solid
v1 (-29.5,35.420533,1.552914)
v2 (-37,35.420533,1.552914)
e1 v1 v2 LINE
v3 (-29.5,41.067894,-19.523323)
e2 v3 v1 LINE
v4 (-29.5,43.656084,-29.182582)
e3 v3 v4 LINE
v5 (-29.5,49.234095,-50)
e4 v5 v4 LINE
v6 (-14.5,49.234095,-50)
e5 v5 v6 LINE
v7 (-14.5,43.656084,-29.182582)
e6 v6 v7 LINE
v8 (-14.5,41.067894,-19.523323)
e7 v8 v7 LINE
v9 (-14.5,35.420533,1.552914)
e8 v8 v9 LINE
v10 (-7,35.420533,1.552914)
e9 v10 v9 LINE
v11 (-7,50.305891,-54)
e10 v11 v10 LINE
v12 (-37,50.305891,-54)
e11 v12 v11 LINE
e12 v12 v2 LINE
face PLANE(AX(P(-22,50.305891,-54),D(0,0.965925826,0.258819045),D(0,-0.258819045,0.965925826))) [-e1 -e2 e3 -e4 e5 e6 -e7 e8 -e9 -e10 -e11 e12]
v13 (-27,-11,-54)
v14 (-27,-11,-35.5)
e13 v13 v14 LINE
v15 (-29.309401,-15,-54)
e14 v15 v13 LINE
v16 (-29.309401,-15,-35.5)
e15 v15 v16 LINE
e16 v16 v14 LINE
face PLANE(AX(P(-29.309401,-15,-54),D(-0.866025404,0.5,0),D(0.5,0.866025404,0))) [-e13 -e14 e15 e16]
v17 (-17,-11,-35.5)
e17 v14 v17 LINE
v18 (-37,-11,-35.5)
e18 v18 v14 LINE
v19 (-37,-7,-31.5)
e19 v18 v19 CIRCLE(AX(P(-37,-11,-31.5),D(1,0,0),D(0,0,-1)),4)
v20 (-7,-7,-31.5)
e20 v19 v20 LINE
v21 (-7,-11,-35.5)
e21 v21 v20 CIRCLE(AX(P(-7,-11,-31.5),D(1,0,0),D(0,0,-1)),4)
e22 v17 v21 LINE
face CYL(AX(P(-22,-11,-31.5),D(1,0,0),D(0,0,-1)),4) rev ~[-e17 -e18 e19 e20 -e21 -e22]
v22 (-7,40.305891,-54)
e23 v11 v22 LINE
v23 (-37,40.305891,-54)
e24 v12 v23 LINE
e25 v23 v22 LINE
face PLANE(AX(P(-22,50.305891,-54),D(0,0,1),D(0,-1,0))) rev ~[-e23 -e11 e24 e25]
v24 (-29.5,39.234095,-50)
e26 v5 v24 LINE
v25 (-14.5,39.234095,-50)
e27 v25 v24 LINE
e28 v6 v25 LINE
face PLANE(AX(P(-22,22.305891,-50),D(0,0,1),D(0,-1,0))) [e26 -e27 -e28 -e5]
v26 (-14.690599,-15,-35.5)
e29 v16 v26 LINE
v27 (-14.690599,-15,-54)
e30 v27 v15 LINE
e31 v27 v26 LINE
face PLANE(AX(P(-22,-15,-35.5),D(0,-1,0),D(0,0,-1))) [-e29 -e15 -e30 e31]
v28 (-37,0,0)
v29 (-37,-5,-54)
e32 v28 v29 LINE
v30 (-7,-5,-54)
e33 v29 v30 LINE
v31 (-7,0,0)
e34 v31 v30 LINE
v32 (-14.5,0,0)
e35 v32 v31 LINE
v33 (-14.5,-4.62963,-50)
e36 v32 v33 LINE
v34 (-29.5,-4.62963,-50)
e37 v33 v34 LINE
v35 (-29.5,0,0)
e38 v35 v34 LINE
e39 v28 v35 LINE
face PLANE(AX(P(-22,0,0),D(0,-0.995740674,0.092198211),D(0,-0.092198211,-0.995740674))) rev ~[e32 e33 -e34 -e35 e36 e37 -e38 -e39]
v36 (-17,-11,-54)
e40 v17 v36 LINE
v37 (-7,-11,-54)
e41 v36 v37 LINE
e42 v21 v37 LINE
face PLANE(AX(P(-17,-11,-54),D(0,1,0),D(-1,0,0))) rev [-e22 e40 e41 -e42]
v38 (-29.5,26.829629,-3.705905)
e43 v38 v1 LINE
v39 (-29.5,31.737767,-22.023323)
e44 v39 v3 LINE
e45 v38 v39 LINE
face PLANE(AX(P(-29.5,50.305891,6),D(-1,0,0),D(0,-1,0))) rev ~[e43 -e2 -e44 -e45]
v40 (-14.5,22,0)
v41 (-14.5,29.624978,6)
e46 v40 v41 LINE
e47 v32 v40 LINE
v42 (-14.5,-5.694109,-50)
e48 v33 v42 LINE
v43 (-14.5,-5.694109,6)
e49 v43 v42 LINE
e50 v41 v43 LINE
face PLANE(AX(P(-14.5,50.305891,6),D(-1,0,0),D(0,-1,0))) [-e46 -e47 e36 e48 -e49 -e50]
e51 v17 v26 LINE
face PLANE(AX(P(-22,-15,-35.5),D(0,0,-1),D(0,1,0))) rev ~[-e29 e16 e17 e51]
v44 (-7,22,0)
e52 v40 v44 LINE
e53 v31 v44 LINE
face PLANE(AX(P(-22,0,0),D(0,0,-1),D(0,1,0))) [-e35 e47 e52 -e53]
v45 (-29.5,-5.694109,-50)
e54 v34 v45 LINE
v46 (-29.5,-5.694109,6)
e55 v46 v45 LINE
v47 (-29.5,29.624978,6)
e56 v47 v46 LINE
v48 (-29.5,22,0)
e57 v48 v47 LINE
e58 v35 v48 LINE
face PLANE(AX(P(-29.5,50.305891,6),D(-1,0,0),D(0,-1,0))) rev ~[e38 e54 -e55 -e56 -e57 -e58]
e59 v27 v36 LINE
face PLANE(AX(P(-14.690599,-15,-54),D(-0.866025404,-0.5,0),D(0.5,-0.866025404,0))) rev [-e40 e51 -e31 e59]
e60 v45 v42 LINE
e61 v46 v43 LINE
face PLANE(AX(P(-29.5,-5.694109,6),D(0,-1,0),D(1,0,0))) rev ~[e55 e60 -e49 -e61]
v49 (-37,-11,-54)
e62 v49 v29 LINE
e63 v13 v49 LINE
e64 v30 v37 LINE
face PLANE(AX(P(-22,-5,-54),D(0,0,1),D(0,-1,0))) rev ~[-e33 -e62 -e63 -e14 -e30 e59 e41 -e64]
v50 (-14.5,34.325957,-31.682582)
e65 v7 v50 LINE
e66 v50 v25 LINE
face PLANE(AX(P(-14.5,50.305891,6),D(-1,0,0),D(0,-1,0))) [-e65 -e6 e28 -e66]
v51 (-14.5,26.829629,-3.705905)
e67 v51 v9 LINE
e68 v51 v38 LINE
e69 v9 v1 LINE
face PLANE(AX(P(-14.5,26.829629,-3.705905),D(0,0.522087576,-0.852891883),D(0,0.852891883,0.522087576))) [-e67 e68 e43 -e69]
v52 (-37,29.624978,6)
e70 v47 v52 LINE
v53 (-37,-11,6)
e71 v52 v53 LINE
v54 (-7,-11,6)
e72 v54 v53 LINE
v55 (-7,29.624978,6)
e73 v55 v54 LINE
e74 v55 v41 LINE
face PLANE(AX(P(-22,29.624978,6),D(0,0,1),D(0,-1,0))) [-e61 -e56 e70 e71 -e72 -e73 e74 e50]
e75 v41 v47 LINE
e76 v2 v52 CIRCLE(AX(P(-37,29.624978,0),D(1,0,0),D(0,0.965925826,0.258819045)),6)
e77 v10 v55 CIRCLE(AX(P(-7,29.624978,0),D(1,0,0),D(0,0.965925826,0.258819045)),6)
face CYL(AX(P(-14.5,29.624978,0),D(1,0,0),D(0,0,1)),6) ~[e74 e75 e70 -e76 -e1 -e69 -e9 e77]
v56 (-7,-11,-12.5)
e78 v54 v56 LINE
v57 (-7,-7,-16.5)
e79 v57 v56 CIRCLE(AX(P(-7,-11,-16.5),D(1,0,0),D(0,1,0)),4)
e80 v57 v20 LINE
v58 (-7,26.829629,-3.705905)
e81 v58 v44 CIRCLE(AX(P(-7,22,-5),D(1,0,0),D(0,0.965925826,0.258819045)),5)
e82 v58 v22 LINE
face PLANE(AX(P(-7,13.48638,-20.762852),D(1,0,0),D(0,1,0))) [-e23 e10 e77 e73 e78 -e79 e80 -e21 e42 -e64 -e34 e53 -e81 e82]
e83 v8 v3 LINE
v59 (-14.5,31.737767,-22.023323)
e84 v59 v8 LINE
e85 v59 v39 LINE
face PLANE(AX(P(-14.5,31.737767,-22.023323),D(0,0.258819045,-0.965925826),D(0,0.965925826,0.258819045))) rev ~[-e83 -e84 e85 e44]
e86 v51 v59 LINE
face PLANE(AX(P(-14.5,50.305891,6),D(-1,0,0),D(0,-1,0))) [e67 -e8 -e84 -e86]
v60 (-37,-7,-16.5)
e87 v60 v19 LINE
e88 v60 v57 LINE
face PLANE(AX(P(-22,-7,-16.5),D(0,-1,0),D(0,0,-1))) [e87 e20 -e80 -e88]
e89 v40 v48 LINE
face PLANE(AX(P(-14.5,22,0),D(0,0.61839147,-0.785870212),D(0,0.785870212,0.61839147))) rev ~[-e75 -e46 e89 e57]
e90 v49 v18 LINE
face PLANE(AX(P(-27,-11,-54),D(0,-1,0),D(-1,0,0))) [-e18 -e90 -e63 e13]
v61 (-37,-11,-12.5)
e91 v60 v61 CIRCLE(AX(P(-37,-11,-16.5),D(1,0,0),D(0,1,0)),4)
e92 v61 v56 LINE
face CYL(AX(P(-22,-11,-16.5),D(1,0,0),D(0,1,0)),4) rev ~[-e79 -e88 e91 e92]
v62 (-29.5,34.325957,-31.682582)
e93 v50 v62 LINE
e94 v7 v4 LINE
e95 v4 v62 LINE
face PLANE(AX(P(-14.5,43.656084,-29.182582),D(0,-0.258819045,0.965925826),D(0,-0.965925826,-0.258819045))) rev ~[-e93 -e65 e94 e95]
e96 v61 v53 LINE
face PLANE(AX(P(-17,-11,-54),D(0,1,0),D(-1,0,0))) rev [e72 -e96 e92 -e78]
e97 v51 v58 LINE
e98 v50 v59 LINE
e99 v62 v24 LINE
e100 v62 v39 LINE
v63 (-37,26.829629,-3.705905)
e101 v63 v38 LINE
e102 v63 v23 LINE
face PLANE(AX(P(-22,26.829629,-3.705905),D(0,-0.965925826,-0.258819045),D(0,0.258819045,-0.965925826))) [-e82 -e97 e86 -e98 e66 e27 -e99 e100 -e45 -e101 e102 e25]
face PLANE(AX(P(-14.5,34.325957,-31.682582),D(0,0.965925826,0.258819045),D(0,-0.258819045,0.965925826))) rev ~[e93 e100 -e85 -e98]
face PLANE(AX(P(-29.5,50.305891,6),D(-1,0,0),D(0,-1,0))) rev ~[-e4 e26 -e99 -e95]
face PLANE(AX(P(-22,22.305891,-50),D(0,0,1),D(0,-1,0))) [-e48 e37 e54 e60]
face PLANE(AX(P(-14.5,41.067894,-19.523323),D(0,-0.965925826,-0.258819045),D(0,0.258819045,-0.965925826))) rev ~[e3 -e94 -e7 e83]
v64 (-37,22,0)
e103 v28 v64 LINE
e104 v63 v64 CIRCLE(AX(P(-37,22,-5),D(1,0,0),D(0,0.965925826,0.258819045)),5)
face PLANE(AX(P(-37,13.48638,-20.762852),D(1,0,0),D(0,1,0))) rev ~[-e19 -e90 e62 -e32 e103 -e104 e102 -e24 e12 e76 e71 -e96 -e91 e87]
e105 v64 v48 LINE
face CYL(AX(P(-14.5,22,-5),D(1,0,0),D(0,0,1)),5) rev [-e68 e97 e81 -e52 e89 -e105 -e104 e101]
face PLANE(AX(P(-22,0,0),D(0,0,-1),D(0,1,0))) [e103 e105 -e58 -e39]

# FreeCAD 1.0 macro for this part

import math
import FreeCAD as App
import Part
import Sketcher
from FreeCAD import Vector
Q = App.Units.Quantity


def add_polygon(sketch, points):
    """Adds a closed chain of lines whose ends are joined by coincident constraints."""
    first, n = sketch.GeometryCount, len(points)
    for a, b in zip(points, points[1:] + points[:1]):
        sketch.addGeometry(Part.LineSegment(App.Vector(*a, 0), App.Vector(*b, 0)), False)
    for i in range(n):
        sketch.addConstraint(Sketcher.Constraint("Coincident", first + i, 2, first + (i + 1) % n, 1))

doc = App.newDocument("Part")
body = doc.addObject("PartDesign::Body", "Body")

# Sketch on YZ plane
sketch1 = doc.addObject("Sketcher::SketchObject", "Sketch")
body.addObject(sketch1)
sketch1.AttachmentSupport = (doc.YZ_Plane, [""])
sketch1.MapMode = "FlatFace"
sketch1.addGeometry([
    Part.LineSegment(Vector(-15, 6, 0), Vector(-15, -12.5, 0)),  # 0
    Part.LineSegment(Vector(-15, -12.5, 0), Vector(-11, -12.5, 0)),  # 1
    Part.ArcOfCircle(Part.Circle(Vector(-11, -16.5, 0), Vector(0, 0, 1), 4), math.radians(0), math.radians(90)),  # 2
    Part.LineSegment(Vector(-7, -16.5, 0), Vector(-7, -31.5, 0)),  # 3
    Part.ArcOfCircle(Part.Circle(Vector(-11, -31.5, 0), Vector(0, 0, 1), 4), math.radians(-90), math.radians(0)),  # 4
    Part.LineSegment(Vector(-11, -35.5, 0), Vector(-15, -35.5, 0)),  # 5
    Part.LineSegment(Vector(-15, -35.5, 0), Vector(-15, -54, 0)),  # 6
    Part.LineSegment(Vector(-15, -54, 0), Vector(-5, -54, 0)),  # 7
    Part.LineSegment(Vector(-5, -54, 0), Vector(0, 0, 0)),  # 8
    Part.LineSegment(Vector(0, 0, 0), Vector(22, 0, 0)),  # 9
    Part.ArcOfCircle(Part.Circle(Vector(22, -5, 0), Vector(0, 0, 1), 5), math.radians(15), math.radians(90)),  # 10
    Part.LineSegment(Vector(26.8, -3.7, 0), Vector(40.3, -54, 0)),  # 11
    Part.LineSegment(Vector(40.3, -54, 0), Vector(50.3, -54, 0)),  # 12
    Part.LineSegment(Vector(50.3, -54, 0), Vector(35.4, 1.6, 0)),  # 13
    Part.ArcOfCircle(Part.Circle(Vector(29.6, 0, 0), Vector(0, 0, 1), 6), math.radians(15), math.radians(90)),  # 14
    Part.LineSegment(Vector(29.6, 6, 0), Vector(-15, 6, 0)),  # 15
], False)
sketch1.addConstraint([
    Sketcher.Constraint("Coincident", 0, 2, 1, 1),
    Sketcher.Constraint("Tangent", 1, 2, 2, 2),
    Sketcher.Constraint("Tangent", 2, 1, 3, 1),
    Sketcher.Constraint("Tangent", 3, 2, 4, 2),
    Sketcher.Constraint("Tangent", 4, 1, 5, 1),
    Sketcher.Constraint("Coincident", 5, 2, 6, 1),
    Sketcher.Constraint("Coincident", 6, 2, 7, 1),
    Sketcher.Constraint("Coincident", 7, 2, 8, 1),
    Sketcher.Constraint("Coincident", 8, 2, 9, 1),
    Sketcher.Constraint("Tangent", 9, 2, 10, 2),
    Sketcher.Constraint("Tangent", 10, 1, 11, 1),
    Sketcher.Constraint("Coincident", 11, 2, 12, 1),
    Sketcher.Constraint("Coincident", 12, 2, 13, 1),
    Sketcher.Constraint("Tangent", 13, 2, 14, 1),
    Sketcher.Constraint("Tangent", 14, 2, 15, 1),
    Sketcher.Constraint("Coincident", 15, 2, 0, 1),
    Sketcher.Constraint("Vertical", 0),
    Sketcher.Constraint("Horizontal", 1),
    Sketcher.Constraint("Vertical", 3),
    Sketcher.Constraint("Horizontal", 5),
    Sketcher.Constraint("Vertical", 6),
    Sketcher.Constraint("Horizontal", 7),
    Sketcher.Constraint("Horizontal", 9),
    Sketcher.Constraint("Horizontal", 12),
    Sketcher.Constraint("Horizontal", 15),
    Sketcher.Constraint("Coincident", 8, 2, -1, 1),
    Sketcher.Constraint("Equal", 2, 4),
    Sketcher.Constraint("PointOnObject", 14, 3, -1),
    Sketcher.Constraint("Parallel", 11, 13),
    Sketcher.Constraint("Horizontal", 7, 2, 11, 2),
    Sketcher.Constraint("Vertical", 0, 2, 5, 2),
    Sketcher.Constraint("Equal", 7, 12),
    Sketcher.Constraint("Equal", 0, 6),
    Sketcher.Constraint("Radius", 2, Q("4 mm")),
    Sketcher.Constraint("Radius", 10, Q("5 mm")),
    Sketcher.Constraint("Radius", 14, Q("6 mm")),
    Sketcher.Constraint("DistanceX", 1, 1, 1, 2, Q("4 mm")),
    Sketcher.Constraint("DistanceX", 7, 1, 7, 2, Q("10 mm")),
    Sketcher.Constraint("DistanceX", 9, 1, 9, 2, Q("22 mm")),
    Sketcher.Constraint("DistanceY", 3, 2, 3, 1, Q("15 mm")),
    Sketcher.Constraint("Angle", 11, Q("-75 deg")),
    Sketcher.Constraint("DistanceY", 0, 2, 0, 1, Q("18.5 mm")),
    Sketcher.Constraint("DistanceX", 2, 3, -1, 1, Q("11 mm")),
])
pad1 = doc.addObject("PartDesign::Pad", "Pad")
body.addObject(pad1)
pad1.Profile = sketch1
pad1.Length = 30
pad1.Midplane = True

# Sketch on XY plane
sketch2 = doc.addObject("Sketcher::SketchObject", "Sketch001")
body.addObject(sketch2)
sketch2.AttachmentSupport = (doc.XY_Plane, [""])
sketch2.MapMode = "FlatFace"
sketch2.AttachmentOffset = App.Placement(Vector(0, 0, -54), App.Rotation())
add_polygon(sketch2, [(-15, -11), (-15, -15), (-7.3, -15), (-5, -11)])  # lines 0-3
sketch2.addConstraint([
    Sketcher.Constraint("Vertical", 0),
    Sketcher.Constraint("Horizontal", 1),
    Sketcher.Constraint("Horizontal", 3),
    Sketcher.Constraint("DistanceX", 3, 2, 3, 1, Q("10 mm")),
    Sketcher.Constraint("DistanceY", 0, 2, 0, 1, Q("4 mm")),
    Sketcher.Constraint("Angle", 2, Q("60 deg")),
    Sketcher.Constraint("DistanceX", 0, 2, -1, 1, Q("15 mm")),
    Sketcher.Constraint("DistanceY", 0, 2, -1, 1, Q("15 mm")),
])
pocket1 = doc.addObject("PartDesign::Pocket", "Pocket")
body.addObject(pocket1)
pocket1.Profile = sketch2
pocket1.Type = "ThroughAll"
pocket1.Midplane = True
doc.recompute()

mirrored = doc.addObject("PartDesign::Mirrored", "Mirrored")
body.addObject(mirrored)
mirrored.Originals = [pocket1]
mirrored.MirrorPlane = (doc.YZ_Plane, [""])
body.Tip = mirrored

# Sketch on XY plane
sketch3 = doc.addObject("Sketcher::SketchObject", "Sketch002")
body.addObject(sketch3)
sketch3.AttachmentSupport = (doc.XY_Plane, [""])
sketch3.MapMode = "FlatFace"
sketch3.AttachmentOffset = App.Placement(Vector(0, 0, 6), App.Rotation())
add_polygon(sketch3, [(7.3, -15), (-7.3, -15), (-7.3, -11), (7.3, -11)])  # lines 0-3
sketch3.addConstraint([
    Sketcher.Constraint("Horizontal", 0),
    Sketcher.Constraint("Vertical", 1),
    Sketcher.Constraint("Horizontal", 2),
    Sketcher.Constraint("Vertical", 3),
    Sketcher.Constraint("DistanceY", 1, 1, 1, 2, Q("4 mm")),
    Sketcher.Constraint("DistanceY", 0, 2, -1, 1, Q("15 mm")),
    Sketcher.Constraint("DistanceX", 0, 2, -1, 1, Q("7.309401 mm")),
    Sketcher.Constraint("DistanceX", -1, 1, 2, 2, Q("7.309401 mm")),
])
pocket2 = doc.addObject("PartDesign::Pocket", "Pocket001")
body.addObject(pocket2)
pocket2.Profile = sketch3
pocket2.Length = 25

# Sketch on XY plane
sketch4 = doc.addObject("Sketcher::SketchObject", "Sketch003")
body.addObject(sketch4)
sketch4.AttachmentSupport = (doc.XY_Plane, [""])
sketch4.MapMode = "FlatFace"
sketch4.AttachmentOffset = App.Placement(Vector(0, 0, 6), App.Rotation())
add_polygon(sketch4, [(8, 50), (-8, 50), (-8, -6), (8, -6)])  # lines 0-3
sketch4.addConstraint([
    Sketcher.Constraint("Horizontal", 0),
    Sketcher.Constraint("Vertical", 1),
    Sketcher.Constraint("Horizontal", 2),
    Sketcher.Constraint("Vertical", 3),
    Sketcher.Constraint("DistanceX", 0, 2, 0, 1, Q("15 mm")),
    Sketcher.Constraint("DistanceY", 1, 2, 1, 1, Q("56 mm")),
    Sketcher.Constraint("DistanceX", 0, 2, -1, 1, Q("7.5 mm")),
    Sketcher.Constraint("DistanceY", -1, 1, 0, 2, Q("50.305891 mm")),
])
pocket3 = doc.addObject("PartDesign::Pocket", "Pocket002")
body.addObject(pocket3)
pocket3.Profile = sketch4
pocket3.Length = 56

# Sketch on YZ plane
sketch5 = doc.addObject("Sketcher::SketchObject", "Sketch004")
body.addObject(sketch5)
sketch5.AttachmentSupport = (doc.YZ_Plane, [""])
sketch5.MapMode = "FlatFace"
sketch5.AttachmentOffset = App.Placement(Vector(0, 0, 7.5), App.Rotation())
sketch5.addGeometry(Part.LineSegment(Vector(35, 2, 0), Vector(27, -4, 0)), False)  # 0
sketch5.addGeometry(Part.ArcOfCircle(Part.Circle(Vector(22, -5, 0), Vector(0, 0, 1), 5), math.radians(15), math.radians(90)), False)  # 1
sketch5.addGeometry(Part.LineSegment(Vector(22, 0, 0), Vector(30, 6, 0)), False)  # 2
sketch5.addGeometry(Part.ArcOfCircle(Part.Circle(Vector(30, 0, 0), Vector(0, 0, 1), 6), math.radians(15), math.radians(90)), False)  # 3
add_polygon(sketch5, [(34, -32), (32, -22), (41, -20), (44, -29)])  # lines 4-7
sketch5.addConstraint([
    Sketcher.Constraint("Coincident", 0, 2, 1, 1),
    Sketcher.Constraint("Coincident", 1, 2, 2, 1),
    Sketcher.Constraint("Coincident", 2, 2, 3, 2),
    Sketcher.Constraint("Coincident", 3, 1, 0, 1),
    Sketcher.Constraint("PointOnObject", 3, 3, -1),
    Sketcher.Constraint("PointOnObject", 1, 2, -1),
    Sketcher.Constraint("Perpendicular", 4, 5),
    Sketcher.Constraint("Perpendicular", 5, 6),
    Sketcher.Constraint("Perpendicular", 6, 7),
    Sketcher.Constraint("Vertical", 3, 3, 2, 2),
    Sketcher.Constraint("Radius", 1, Q("5 mm")),
    Sketcher.Constraint("Radius", 3, Q("6 mm")),
    Sketcher.Constraint("Angle", 4, Q("105 deg")),
    Sketcher.Constraint("Distance", 4, Q("10 mm")),
    Sketcher.Constraint("DistanceX", -1, 1, 1, 3, Q("22 mm")),
    Sketcher.Constraint("DistanceX", -1, 1, 1, 2, Q("22 mm")),
    Sketcher.Constraint("DistanceY", 4, 2, 5, 2, Q("2.5 mm")),
    Sketcher.Constraint("Distance", 2, Q("9.702592 mm")),
    Sketcher.Constraint("DistanceX", -1, 1, 0, 2, Q("26.829629 mm")),
    Sketcher.Constraint("DistanceY", 6, 2, -1, 1, Q("29.182582 mm")),
    Sketcher.Constraint("DistanceY", 0, 2, 3, 1, Q("5.258819 mm")),
    Sketcher.Constraint("DistanceX", 3, 3, 4, 2, Q("2.112789 mm")),
])
pad2 = doc.addObject("PartDesign::Pad", "Pad001")
body.addObject(pad2)
pad2.Profile = sketch5
pad2.Length = 15
pad2.Reversed = True
body2 = doc.addObject("PartDesign::Body", "Body001")
doc.recompute()

body.Placement = App.Placement(Vector(-22, 0, 0), App.Rotation(Vector(0, 0, 1), 0))
boolean = doc.addObject("PartDesign::Boolean", "Boolean")
body2.addObject(boolean)
boolean.Type = "Fuse"
boolean.addObjects([body])

doc.recompute()
